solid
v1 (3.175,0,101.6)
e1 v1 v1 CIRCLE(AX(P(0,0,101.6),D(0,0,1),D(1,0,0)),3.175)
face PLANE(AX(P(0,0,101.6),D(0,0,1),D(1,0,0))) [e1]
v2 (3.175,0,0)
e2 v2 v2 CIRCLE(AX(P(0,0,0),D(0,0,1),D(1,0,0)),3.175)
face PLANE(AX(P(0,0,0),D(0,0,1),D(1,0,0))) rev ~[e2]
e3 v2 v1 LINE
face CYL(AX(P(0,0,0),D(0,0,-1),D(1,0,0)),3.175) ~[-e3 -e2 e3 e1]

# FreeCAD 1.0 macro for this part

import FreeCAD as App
import Part
import Sketcher
from FreeCAD import Vector
Q = App.Units.Quantity

doc = App.newDocument("Part")
body = doc.addObject("PartDesign::Body", "Body")

# Sketch on XY plane
sketch1 = doc.addObject("Sketcher::SketchObject", "Sketch")
body.addObject(sketch1)
sketch1.AttachmentSupport = (doc.XY_Plane, [""])
sketch1.MapMode = "FlatFace"
sketch1.addGeometry(Part.Circle(Vector(0, 0, 0), Vector(0, 0, 1), 3.175), False)
sketch1.addConstraint([
    Sketcher.Constraint("Coincident", 0, 3, -1, 1),
    Sketcher.Constraint("Diameter", 0, Q("0.25 in")),
])
pad1 = doc.addObject("PartDesign::Pad", "Pad")
body.addObject(pad1)
pad1.Profile = sketch1
pad1.Length = Q("4 in")

doc.recompute()
